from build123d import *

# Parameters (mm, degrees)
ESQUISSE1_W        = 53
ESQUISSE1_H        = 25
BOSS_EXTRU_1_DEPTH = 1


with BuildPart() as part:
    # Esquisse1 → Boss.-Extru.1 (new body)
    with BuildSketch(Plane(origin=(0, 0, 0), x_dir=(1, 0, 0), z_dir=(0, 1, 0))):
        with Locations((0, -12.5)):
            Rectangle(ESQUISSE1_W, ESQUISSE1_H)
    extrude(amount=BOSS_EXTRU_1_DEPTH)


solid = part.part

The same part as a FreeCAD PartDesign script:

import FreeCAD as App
import Part
import Sketcher
from FreeCAD import Vector

doc = App.newDocument("Part")
body = doc.addObject("PartDesign::Body", "Body")

# Sketch on XZ plane
sketch1 = body.newObject("Sketcher::SketchObject", "Sketch")
sketch1.AttachmentSupport = (doc.getObject("XZ_Plane"), [""])
sketch1.MapMode = "FlatFace"
sketch1.addGeometry([
    Part.LineSegment(Vector(-26.5, 0, 0), Vector(-26.5, 25, 0)),
    Part.LineSegment(Vector(-26.5, 25, 0), Vector(26.5, 25, 0)),
    Part.LineSegment(Vector(26.5, 25, 0), Vector(26.5, 0, 0)),
    Part.LineSegment(Vector(26.5, 0, 0), Vector(-26.5, 0, 0)),
], False)
sketch1.addConstraint([
    Sketcher.Constraint("Coincident", 0, 2, 1, 1),
    Sketcher.Constraint("Coincident", 1, 2, 2, 1),
    Sketcher.Constraint("Coincident", 2, 2, 3, 1),
    Sketcher.Constraint("Coincident", 3, 2, 0, 1),
    Sketcher.Constraint("Vertical", 0),
    Sketcher.Constraint("Horizontal", 1),
    Sketcher.Constraint("Vertical", 2),
    Sketcher.Constraint("Horizontal", 3),
    Sketcher.Constraint("Symmetric", 2, 2, 3, 2, -1, 1),
    Sketcher.Constraint("DistanceX", 1, 1, 1, 2, 53.0),
    Sketcher.Constraint("DistanceY", 0, 1, 0, 2, 25.0),
])
pad1 = body.newObject("PartDesign::Pad", "Pad")
pad1.Profile = sketch1
pad1.Length = 1
pad1.Reversed = True

doc.recompute()
